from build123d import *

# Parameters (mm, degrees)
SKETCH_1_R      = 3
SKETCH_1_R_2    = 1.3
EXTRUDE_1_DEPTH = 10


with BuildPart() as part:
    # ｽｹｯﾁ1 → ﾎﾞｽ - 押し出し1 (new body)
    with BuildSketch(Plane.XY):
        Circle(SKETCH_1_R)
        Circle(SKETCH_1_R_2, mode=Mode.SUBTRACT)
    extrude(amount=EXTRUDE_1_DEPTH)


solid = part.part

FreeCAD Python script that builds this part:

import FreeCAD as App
import Part
import Sketcher

V = App.Vector

doc = App.newDocument("Part")
body = doc.addObject("PartDesign::Body", "Body")

sketch1 = body.newObject("Sketcher::SketchObject", "Sketch")
sketch1.AttachmentSupport = (doc.getObject("XY_Plane"), [""])
sketch1.MapMode = "FlatFace"
sketch1.addGeometry(Part.Circle(V(0, 0, 0), V(0, 0, 1), 3), False)
sketch1.addGeometry(Part.Circle(V(0, 0, 0), V(0, 0, 1), 1.3), False)
sketch1.addConstraint(Sketcher.Constraint("Coincident", 0, 3, -1, 1))
sketch1.addConstraint(Sketcher.Constraint("Coincident", 1, 3, -1, 1))
sketch1.addConstraint(Sketcher.Constraint("Diameter", 0, 6.0))
sketch1.addConstraint(Sketcher.Constraint("Diameter", 1, 2.6))
pad1 = body.newObject("PartDesign::Pad", "Pad")
pad1.Profile = sketch1
pad1.Length = 10

doc.recompute()
